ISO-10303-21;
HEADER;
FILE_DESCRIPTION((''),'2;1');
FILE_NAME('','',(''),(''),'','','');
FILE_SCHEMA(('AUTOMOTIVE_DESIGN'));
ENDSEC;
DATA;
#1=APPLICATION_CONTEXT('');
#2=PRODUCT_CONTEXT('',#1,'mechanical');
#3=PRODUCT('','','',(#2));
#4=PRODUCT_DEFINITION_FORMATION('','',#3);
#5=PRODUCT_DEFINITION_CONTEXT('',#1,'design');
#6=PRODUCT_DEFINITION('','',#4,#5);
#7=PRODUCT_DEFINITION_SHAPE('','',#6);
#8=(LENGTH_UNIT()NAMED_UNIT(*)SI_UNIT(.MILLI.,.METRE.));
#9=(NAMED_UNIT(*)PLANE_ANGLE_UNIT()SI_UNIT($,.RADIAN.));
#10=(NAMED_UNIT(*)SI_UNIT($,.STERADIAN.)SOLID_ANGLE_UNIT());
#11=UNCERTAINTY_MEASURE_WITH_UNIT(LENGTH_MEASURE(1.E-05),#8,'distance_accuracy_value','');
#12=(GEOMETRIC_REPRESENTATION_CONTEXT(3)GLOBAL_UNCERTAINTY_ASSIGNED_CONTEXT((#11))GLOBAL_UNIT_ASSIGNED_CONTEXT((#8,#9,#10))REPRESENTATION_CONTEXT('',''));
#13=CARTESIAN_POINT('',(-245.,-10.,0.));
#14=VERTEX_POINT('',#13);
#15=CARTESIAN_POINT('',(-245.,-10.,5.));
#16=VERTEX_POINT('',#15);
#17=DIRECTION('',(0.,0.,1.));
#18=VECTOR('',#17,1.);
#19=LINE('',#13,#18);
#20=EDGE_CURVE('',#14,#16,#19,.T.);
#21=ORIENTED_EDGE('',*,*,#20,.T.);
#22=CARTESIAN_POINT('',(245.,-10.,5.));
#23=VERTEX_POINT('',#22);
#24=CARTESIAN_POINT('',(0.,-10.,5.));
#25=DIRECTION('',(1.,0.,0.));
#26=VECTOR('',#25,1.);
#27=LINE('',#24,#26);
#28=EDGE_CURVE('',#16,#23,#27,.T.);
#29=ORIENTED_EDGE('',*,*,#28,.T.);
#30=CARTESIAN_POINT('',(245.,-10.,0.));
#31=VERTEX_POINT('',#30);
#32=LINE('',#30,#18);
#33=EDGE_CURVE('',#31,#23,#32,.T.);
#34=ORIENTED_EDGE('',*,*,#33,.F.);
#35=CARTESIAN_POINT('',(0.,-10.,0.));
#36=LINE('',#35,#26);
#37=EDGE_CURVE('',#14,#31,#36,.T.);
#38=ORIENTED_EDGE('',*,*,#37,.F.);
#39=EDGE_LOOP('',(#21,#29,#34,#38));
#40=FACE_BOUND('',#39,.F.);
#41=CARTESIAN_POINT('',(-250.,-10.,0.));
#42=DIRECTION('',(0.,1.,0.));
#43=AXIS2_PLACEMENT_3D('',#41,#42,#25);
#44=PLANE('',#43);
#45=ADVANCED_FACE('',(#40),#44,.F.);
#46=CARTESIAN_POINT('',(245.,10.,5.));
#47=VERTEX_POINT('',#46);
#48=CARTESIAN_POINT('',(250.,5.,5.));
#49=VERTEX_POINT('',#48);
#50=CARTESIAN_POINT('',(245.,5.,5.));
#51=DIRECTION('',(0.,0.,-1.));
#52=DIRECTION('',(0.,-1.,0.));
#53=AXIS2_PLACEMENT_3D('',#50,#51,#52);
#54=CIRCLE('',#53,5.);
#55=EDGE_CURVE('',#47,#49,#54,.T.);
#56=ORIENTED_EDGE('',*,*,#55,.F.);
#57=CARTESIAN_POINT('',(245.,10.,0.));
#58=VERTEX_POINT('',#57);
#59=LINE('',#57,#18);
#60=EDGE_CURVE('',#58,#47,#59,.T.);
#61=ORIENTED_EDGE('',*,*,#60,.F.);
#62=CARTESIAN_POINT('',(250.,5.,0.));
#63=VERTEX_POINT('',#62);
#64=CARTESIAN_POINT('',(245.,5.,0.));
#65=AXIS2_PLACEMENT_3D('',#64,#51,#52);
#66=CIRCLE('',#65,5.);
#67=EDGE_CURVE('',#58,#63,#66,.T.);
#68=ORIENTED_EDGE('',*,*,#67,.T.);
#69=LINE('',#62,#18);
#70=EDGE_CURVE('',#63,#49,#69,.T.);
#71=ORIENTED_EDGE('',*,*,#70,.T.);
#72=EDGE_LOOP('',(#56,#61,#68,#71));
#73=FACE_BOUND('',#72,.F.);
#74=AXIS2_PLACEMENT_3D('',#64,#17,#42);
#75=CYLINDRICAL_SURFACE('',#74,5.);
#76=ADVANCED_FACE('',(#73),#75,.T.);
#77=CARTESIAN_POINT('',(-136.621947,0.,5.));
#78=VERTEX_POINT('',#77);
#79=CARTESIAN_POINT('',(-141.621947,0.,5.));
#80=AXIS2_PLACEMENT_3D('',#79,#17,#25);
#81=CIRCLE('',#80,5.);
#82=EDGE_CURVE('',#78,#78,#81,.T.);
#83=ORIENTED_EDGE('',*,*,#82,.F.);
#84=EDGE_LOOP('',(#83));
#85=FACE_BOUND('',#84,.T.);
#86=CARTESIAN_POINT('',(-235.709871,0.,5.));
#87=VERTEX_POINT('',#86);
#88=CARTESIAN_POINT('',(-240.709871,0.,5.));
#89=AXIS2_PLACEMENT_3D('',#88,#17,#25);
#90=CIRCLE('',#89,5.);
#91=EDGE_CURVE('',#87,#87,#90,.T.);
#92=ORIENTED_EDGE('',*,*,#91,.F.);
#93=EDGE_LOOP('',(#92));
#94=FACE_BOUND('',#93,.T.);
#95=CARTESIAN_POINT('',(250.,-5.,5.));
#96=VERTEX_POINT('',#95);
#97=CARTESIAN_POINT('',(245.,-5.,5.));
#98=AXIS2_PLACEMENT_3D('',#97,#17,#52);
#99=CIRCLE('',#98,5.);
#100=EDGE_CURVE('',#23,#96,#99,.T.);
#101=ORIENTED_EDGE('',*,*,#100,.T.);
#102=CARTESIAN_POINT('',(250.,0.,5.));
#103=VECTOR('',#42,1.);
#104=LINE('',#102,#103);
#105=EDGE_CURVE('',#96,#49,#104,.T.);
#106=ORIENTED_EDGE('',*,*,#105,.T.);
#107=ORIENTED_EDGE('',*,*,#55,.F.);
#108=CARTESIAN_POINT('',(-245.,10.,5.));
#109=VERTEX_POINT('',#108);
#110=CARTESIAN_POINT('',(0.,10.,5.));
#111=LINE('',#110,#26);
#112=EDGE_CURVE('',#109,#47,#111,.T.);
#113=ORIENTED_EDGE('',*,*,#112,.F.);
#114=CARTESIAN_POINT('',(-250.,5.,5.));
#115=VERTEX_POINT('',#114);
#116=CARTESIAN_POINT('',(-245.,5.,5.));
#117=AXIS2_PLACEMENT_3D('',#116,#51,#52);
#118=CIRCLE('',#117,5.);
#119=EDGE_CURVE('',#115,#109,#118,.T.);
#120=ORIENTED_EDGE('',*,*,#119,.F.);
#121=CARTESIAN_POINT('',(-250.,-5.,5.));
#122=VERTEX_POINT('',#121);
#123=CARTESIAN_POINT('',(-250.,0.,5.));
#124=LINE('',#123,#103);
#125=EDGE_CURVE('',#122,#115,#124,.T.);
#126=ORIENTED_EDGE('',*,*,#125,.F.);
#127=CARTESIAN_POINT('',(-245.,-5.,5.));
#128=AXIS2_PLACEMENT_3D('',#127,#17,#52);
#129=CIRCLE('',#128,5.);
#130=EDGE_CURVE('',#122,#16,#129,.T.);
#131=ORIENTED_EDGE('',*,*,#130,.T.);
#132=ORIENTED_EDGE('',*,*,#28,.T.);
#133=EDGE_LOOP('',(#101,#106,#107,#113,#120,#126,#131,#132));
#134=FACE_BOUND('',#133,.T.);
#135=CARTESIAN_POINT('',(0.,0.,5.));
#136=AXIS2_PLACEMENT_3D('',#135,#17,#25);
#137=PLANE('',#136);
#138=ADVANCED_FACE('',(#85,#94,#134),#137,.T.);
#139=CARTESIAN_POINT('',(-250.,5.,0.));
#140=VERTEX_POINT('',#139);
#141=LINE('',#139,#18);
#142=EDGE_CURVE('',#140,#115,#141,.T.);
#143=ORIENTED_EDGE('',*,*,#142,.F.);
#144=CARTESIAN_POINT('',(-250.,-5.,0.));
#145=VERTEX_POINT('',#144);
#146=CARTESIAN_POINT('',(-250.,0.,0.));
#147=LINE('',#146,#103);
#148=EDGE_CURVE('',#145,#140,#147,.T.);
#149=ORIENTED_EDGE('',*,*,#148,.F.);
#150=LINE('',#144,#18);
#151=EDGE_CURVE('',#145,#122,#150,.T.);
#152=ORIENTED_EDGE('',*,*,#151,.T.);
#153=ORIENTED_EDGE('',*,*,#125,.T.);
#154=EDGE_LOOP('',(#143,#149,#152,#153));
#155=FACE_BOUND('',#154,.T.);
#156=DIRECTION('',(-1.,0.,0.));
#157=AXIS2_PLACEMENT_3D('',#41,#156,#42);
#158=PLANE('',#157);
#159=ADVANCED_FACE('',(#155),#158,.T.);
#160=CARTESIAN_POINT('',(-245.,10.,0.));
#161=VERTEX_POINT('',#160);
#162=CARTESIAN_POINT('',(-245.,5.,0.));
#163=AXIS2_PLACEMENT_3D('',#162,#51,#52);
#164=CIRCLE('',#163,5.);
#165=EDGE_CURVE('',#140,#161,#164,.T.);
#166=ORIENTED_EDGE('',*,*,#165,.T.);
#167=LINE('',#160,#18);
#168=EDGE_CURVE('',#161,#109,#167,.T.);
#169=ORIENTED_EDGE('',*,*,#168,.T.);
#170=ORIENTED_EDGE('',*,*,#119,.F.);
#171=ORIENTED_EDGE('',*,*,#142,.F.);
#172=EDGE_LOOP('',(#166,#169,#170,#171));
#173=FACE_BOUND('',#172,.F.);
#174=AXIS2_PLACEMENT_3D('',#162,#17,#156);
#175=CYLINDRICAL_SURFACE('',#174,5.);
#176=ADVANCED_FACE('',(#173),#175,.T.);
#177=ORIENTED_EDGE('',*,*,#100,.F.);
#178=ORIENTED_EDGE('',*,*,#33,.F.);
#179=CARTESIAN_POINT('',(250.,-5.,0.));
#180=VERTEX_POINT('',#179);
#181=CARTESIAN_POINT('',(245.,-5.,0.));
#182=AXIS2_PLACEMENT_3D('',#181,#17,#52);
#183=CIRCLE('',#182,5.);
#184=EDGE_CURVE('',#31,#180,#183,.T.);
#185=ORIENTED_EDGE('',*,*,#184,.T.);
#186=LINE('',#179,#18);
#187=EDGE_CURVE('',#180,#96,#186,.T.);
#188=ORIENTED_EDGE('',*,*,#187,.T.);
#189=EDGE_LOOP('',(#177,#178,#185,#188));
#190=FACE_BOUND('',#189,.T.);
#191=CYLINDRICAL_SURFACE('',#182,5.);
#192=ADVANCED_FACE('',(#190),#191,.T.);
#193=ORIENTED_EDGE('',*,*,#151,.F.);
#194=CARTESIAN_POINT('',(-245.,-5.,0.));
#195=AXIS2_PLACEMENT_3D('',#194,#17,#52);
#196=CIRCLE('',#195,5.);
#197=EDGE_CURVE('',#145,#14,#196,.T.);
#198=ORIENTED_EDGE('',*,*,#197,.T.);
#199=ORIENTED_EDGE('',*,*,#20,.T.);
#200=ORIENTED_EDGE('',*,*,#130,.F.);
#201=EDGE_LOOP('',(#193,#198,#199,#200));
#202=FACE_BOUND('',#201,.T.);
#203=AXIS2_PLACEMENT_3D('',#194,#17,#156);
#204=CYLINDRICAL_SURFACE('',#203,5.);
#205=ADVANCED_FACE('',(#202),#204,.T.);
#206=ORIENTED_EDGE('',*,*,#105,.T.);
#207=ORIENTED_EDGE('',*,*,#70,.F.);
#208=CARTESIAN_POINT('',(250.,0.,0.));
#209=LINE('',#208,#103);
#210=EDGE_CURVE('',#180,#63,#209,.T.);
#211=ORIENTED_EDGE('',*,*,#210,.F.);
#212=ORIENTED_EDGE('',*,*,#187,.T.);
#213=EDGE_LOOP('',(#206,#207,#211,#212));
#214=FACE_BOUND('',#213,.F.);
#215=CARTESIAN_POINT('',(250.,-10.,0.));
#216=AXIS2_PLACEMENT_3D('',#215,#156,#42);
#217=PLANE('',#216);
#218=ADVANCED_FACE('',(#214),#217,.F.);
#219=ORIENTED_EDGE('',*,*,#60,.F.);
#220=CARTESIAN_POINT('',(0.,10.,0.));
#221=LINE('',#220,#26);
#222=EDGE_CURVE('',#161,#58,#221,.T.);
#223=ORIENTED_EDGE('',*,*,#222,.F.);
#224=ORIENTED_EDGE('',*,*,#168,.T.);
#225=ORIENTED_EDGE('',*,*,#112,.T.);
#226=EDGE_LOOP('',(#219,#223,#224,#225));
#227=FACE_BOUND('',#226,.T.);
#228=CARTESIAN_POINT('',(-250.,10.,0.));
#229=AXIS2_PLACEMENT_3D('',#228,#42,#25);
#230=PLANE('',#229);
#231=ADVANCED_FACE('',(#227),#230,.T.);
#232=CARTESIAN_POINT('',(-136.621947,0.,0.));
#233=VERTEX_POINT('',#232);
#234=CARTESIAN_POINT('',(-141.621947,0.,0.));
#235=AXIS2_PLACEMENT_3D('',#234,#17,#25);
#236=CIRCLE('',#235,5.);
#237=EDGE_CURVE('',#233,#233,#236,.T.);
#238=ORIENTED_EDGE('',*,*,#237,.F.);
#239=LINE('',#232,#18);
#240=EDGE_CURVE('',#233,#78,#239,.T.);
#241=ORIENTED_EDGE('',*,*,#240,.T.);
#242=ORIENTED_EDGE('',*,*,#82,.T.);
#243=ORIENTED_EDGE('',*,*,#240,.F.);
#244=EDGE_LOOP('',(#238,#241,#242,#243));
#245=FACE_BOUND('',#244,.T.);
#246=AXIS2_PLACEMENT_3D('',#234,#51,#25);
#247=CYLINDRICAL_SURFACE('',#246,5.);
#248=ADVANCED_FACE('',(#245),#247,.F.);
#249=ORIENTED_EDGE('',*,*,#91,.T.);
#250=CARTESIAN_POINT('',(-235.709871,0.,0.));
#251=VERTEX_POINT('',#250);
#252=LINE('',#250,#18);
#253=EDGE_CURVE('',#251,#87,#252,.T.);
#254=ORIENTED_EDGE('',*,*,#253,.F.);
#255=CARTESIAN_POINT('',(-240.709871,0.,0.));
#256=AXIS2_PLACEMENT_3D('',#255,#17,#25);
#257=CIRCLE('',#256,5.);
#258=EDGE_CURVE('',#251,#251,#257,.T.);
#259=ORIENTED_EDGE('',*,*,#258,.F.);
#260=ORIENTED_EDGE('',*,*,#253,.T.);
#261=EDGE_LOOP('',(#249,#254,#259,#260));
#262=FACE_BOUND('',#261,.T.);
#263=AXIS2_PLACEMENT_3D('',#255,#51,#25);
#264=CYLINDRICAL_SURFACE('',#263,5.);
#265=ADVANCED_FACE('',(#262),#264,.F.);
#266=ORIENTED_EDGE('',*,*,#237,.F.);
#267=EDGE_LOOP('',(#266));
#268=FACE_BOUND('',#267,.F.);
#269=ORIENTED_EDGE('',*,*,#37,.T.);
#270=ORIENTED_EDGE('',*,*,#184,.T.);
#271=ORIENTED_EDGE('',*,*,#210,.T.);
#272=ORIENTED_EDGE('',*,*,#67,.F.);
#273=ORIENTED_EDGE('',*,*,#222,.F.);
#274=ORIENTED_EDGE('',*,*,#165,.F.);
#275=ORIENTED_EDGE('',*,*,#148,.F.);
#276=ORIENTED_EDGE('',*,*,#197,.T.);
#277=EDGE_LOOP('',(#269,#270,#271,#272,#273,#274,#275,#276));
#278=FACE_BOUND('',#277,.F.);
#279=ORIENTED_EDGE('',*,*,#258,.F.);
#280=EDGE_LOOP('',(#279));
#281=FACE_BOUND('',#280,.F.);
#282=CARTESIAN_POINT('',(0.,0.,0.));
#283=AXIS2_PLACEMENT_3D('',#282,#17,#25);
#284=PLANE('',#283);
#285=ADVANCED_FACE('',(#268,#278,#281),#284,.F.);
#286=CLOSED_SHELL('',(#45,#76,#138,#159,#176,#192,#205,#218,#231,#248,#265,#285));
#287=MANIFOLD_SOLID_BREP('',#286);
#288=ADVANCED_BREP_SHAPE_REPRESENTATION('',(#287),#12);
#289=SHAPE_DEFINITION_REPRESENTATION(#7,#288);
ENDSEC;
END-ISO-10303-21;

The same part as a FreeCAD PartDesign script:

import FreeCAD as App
import Part
import Sketcher
from FreeCAD import Vector


def edges_at(feature, points):
    """Names of the edges that pass closest to the given points."""
    edges = feature.Shape.Edges
    near = lambda p: min(range(len(edges)), key=lambda i: edges[i].distToShape(Part.Vertex(*p))[0])
    return sorted({f"Edge{near(p) + 1}" for p in points})


def add_polygon(sketch, points):
    """Adds a closed chain of lines whose ends are joined by coincident constraints."""
    first, n = sketch.GeometryCount, len(points)
    for a, b in zip(points, points[1:] + points[:1]):
        sketch.addGeometry(Part.LineSegment(App.Vector(*a, 0), App.Vector(*b, 0)), False)
    for i in range(n):
        sketch.addConstraint(Sketcher.Constraint("Coincident", first + i, 2, first + (i + 1) % n, 1))

doc = App.newDocument("Part")
body = doc.addObject("PartDesign::Body", "Body")

sketch1 = body.newObject("Sketcher::SketchObject", "Sketch")
sketch1.AttachmentSupport = (doc.getObject("XY_Plane"), [""])
sketch1.MapMode = "FlatFace"
add_polygon(sketch1, [(-250, 10), (-250, -10), (250, -10), (250, 10)])
sketch1.addGeometry(Part.Circle(Vector(-241, 0, 0), Vector(0, 0, 1), 5), False)
sketch1.addGeometry(Part.Circle(Vector(-142, 0, 0), Vector(0, 0, 1), 5), False)
sketch1.addConstraint([
    Sketcher.Constraint("Vertical", 0),
    Sketcher.Constraint("Horizontal", 1),
    Sketcher.Constraint("Vertical", 2),
    Sketcher.Constraint("Horizontal", 3),
    Sketcher.Constraint("Equal", 4, 5),
    Sketcher.Constraint("Symmetric", 0, 2, 2, 2, -1, 1),
    Sketcher.Constraint("PointOnObject", 4, 3, -1),
    Sketcher.Constraint("PointOnObject", 5, 3, -1),
    Sketcher.Constraint("Diameter", 4, 10.0),
    Sketcher.Constraint("DistanceX", 1, 1, 1, 2, 500.0),
    Sketcher.Constraint("DistanceY", 0, 2, 0, 1, 20.0),
    Sketcher.Constraint("DistanceX", 4, 3, -1, 1, 240.709871),
    Sketcher.Constraint("DistanceX", 5, 3, -1, 1, 141.621947),
])
pad1 = body.newObject("PartDesign::Pad", "Pad")
pad1.Profile = sketch1
pad1.Length = 5
doc.recompute()

fillet = body.newObject("PartDesign::Fillet", "Fillet")
fillet.Base = (pad1, edges_at(pad1, [
    (250, -10, 2.5),
    (250, 10, 2.5),
    (-250, -10, 2.5),
    (-250, 10, 2.5),
]))
fillet.Radius = 5

doc.recompute()
